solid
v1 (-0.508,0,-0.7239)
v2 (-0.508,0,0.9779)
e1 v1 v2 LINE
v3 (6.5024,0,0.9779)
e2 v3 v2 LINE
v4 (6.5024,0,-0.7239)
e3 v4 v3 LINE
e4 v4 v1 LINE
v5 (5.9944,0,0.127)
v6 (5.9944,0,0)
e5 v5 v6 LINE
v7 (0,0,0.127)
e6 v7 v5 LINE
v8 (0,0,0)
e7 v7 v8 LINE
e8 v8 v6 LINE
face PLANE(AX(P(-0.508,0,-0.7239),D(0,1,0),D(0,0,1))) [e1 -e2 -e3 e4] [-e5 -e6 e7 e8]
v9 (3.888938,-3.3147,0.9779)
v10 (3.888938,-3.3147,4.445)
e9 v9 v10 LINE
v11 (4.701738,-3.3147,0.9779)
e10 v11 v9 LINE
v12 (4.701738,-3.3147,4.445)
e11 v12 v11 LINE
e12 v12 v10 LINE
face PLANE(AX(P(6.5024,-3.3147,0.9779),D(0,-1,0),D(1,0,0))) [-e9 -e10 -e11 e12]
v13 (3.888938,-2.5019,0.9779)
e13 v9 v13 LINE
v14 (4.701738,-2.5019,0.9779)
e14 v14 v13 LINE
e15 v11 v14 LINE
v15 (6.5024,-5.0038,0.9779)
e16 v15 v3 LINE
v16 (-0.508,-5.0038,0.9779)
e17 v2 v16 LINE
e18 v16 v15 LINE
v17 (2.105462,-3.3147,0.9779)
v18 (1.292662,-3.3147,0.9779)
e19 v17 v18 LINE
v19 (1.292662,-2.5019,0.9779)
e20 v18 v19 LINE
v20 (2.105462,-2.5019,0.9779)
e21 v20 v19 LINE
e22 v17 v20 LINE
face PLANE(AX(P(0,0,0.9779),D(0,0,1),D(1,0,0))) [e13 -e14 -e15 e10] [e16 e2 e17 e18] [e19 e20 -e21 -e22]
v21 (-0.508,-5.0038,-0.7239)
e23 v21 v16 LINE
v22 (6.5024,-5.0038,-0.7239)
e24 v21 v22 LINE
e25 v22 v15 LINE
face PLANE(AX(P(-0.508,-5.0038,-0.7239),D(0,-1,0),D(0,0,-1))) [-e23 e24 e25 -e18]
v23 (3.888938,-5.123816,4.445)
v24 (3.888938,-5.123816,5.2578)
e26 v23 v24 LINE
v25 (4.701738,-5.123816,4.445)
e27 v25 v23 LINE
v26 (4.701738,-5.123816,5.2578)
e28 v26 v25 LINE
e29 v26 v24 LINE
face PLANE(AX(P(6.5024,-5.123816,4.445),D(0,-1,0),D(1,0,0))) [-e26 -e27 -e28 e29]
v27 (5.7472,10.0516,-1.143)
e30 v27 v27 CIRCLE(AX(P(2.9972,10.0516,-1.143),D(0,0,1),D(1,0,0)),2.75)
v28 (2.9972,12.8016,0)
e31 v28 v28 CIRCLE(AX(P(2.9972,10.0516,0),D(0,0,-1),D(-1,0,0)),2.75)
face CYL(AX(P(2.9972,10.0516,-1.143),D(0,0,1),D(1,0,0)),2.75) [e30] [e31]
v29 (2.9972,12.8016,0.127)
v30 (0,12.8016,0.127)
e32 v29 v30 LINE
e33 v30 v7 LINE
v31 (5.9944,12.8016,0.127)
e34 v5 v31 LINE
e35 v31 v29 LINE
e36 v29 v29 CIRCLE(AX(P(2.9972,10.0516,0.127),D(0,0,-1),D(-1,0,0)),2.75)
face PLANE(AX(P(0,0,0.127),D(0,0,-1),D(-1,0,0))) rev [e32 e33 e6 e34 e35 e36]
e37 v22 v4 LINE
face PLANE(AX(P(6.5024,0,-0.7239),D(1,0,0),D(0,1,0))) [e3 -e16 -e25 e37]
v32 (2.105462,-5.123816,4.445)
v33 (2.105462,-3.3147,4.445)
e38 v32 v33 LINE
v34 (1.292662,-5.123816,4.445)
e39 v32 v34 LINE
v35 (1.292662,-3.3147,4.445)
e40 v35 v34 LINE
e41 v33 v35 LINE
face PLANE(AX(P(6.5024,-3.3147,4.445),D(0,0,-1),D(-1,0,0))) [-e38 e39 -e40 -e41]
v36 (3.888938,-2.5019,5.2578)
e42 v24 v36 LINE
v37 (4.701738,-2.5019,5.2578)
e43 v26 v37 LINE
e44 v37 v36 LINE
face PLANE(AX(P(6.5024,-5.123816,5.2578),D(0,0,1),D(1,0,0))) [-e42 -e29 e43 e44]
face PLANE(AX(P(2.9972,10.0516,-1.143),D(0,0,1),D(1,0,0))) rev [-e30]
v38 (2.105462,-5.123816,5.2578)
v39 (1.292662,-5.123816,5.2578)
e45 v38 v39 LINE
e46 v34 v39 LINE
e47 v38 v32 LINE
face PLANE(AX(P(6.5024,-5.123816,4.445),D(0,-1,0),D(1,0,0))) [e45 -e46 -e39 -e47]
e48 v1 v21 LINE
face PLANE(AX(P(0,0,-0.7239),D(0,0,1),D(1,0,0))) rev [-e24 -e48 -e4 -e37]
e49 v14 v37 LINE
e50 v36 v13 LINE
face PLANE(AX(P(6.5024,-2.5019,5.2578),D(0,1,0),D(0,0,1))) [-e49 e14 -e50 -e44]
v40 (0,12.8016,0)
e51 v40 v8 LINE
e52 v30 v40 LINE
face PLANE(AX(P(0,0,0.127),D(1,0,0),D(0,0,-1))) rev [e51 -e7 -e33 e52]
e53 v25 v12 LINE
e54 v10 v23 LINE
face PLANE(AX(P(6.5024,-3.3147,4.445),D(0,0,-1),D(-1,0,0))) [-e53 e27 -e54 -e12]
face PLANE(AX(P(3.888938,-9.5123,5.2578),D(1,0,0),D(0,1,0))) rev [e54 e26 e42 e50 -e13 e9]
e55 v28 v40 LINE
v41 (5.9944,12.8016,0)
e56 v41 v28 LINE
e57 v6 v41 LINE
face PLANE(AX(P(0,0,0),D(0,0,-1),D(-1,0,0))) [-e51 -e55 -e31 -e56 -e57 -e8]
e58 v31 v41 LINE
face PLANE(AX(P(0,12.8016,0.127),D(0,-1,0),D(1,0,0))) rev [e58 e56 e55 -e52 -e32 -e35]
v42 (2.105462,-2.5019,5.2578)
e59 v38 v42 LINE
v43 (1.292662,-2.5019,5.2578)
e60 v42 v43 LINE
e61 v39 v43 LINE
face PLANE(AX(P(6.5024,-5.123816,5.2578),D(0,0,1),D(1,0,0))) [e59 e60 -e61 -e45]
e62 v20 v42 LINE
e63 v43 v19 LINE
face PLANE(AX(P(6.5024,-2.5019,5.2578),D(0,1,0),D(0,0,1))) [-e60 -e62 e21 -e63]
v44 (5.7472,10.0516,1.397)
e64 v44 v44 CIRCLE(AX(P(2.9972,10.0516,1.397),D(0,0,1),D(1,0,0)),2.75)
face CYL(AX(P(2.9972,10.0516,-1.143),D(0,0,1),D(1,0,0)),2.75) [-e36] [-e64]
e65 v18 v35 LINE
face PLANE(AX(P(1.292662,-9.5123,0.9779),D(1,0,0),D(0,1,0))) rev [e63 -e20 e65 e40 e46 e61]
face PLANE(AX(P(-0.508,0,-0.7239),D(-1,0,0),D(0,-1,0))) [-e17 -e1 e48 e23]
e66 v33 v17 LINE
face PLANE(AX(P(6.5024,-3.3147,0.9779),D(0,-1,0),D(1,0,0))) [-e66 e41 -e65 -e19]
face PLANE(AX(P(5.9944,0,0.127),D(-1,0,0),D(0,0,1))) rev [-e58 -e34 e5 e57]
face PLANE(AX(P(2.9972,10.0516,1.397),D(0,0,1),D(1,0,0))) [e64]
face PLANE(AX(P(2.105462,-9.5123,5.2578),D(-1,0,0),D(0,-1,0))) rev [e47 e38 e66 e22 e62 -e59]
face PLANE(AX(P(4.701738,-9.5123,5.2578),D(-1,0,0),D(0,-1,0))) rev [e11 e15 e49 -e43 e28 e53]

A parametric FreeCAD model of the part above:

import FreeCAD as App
import Part
import Sketcher
from FreeCAD import Vector
Q = App.Units.Quantity

doc = App.newDocument("Part")
body = doc.addObject("PartDesign::Body", "Body")

# Sketch on XY plane
sketch1 = doc.addObject("Sketcher::SketchObject", "Sketch")
body.addObject(sketch1)
sketch1.AttachmentSupport = (doc.XY_Plane, [""])
sketch1.MapMode = "FlatFace"
sketch1.addGeometry(Part.LineSegment(Vector(0, 13, 0), Vector(0, 0, 0)), False)
sketch1.addGeometry(Part.LineSegment(Vector(0, 0, 0), Vector(6, 0, 0)), False)
sketch1.addGeometry(Part.LineSegment(Vector(6, 0, 0), Vector(6, 13, 0)), False)
sketch1.addGeometry(Part.LineSegment(Vector(6, 13, 0), Vector(0, 13, 0)), False)
sketch1.addConstraint(Sketcher.Constraint("Coincident", 0, 2, 1, 1))
sketch1.addConstraint(Sketcher.Constraint("Coincident", 1, 2, 2, 1))
sketch1.addConstraint(Sketcher.Constraint("Coincident", 2, 2, 3, 1))
sketch1.addConstraint(Sketcher.Constraint("Coincident", 3, 2, 0, 1))
sketch1.addConstraint(Sketcher.Constraint("Vertical", 0))
sketch1.addConstraint(Sketcher.Constraint("Horizontal", 1))
sketch1.addConstraint(Sketcher.Constraint("Vertical", 2))
sketch1.addConstraint(Sketcher.Constraint("Horizontal", 3))
sketch1.addConstraint(Sketcher.Constraint("Coincident", 0, 2, -1, 1))
sketch1.addConstraint(Sketcher.Constraint("DistanceX", 1, 1, 1, 2, Q("0.236 in")))
sketch1.addConstraint(Sketcher.Constraint("DistanceY", 0, 2, 0, 1, Q("0.504 in")))
pad1 = doc.addObject("PartDesign::Pad", "Pad")
body.addObject(pad1)
pad1.Profile = sketch1
pad1.Length = Q("0.005 in")

# Sketch on XY plane
sketch2 = doc.addObject("Sketcher::SketchObject", "Sketch001")
body.addObject(sketch2)
sketch2.AttachmentSupport = (doc.XY_Plane, [""])
sketch2.MapMode = "FlatFace"
sketch2.AttachmentOffset = App.Placement(Vector(0, 0, 0.005 * 25.4), App.Rotation())
sketch2.addGeometry(Part.LineSegment(Vector(-1, 0, 0), Vector(-1, -5, 0)), False)
sketch2.addGeometry(Part.LineSegment(Vector(-1, -5, 0), Vector(7, -5, 0)), False)
sketch2.addGeometry(Part.LineSegment(Vector(7, -5, 0), Vector(7, 0, 0)), False)
sketch2.addGeometry(Part.LineSegment(Vector(7, 0, 0), Vector(-1, 0, 0)), False)
sketch2.addConstraint(Sketcher.Constraint("Coincident", 0, 2, 1, 1))
sketch2.addConstraint(Sketcher.Constraint("Coincident", 1, 2, 2, 1))
sketch2.addConstraint(Sketcher.Constraint("Coincident", 2, 2, 3, 1))
sketch2.addConstraint(Sketcher.Constraint("Coincident", 3, 2, 0, 1))
sketch2.addConstraint(Sketcher.Constraint("Vertical", 0))
sketch2.addConstraint(Sketcher.Constraint("Horizontal", 1))
sketch2.addConstraint(Sketcher.Constraint("Vertical", 2))
sketch2.addConstraint(Sketcher.Constraint("Horizontal", 3))
sketch2.addConstraint(Sketcher.Constraint("PointOnObject", 2, 2, -1))
sketch2.addConstraint(Sketcher.Constraint("DistanceX", 1, 1, 1, 2, Q("0.276 in")))
sketch2.addConstraint(Sketcher.Constraint("DistanceY", 0, 2, 0, 1, Q("0.197 in")))
sketch2.addConstraint(Sketcher.Constraint("DistanceX", 0, 2, -1, 1, Q("0.02 in")))
pad2 = doc.addObject("PartDesign::Pad", "Pad001")
body.addObject(pad2)
pad2.Profile = sketch2
pad2.Type = "TwoLengths"
pad2.Length = Q("0.0335 in")
pad2.Length2 = Q("0.0335 in")

# Sketch on XY plane
sketch3 = doc.addObject("Sketcher::SketchObject", "Sketch002")
body.addObject(sketch3)
sketch3.AttachmentSupport = (doc.XY_Plane, [""])
sketch3.MapMode = "FlatFace"
sketch3.AttachmentOffset = App.Placement(Vector(0, 0, 0.005 * 25.4), App.Rotation())
sketch3.addGeometry(Part.Circle(Vector(3, 10.1, 0), Vector(0, 0, 1), 2.8), False)
sketch3.addConstraint(Sketcher.Constraint("Diameter", 0, Q("5.5 mm")))
sketch3.addConstraint(Sketcher.Constraint("DistanceX", -1, 1, 0, 3, Q("0.118 in")))
sketch3.addConstraint(Sketcher.Constraint("DistanceY", -1, 1, 0, 3, Q("10.0516 mm")))
pad3 = doc.addObject("PartDesign::Pad", "Pad002")
body.addObject(pad3)
pad3.Profile = sketch3
pad3.Type = "TwoLengths"
pad3.Length = Q("0.05 in")
pad3.Length2 = Q("0.05 in")

# Sketch on YZ plane
sketch4 = doc.addObject("Sketcher::SketchObject", "Sketch003")
body.addObject(sketch4)
sketch4.AttachmentSupport = (doc.YZ_Plane, [""])
sketch4.MapMode = "FlatFace"
sketch4.AttachmentOffset = App.Placement(Vector(0, 0, -0.02 * 25.4), App.Rotation())
sketch4.addGeometry(Part.LineSegment(Vector(-3.3, 1, 0), Vector(-3.3, 4.4, 0)), False)
sketch4.addGeometry(Part.LineSegment(Vector(-3.3, 4.4, 0), Vector(-5.1, 4.4, 0)), False)
sketch4.addGeometry(Part.LineSegment(Vector(-5.1, 4.4, 0), Vector(-5.1, 5.3, 0)), False)
sketch4.addGeometry(Part.LineSegment(Vector(-5.1, 5.3, 0), Vector(-2.5, 5.3, 0)), False)
sketch4.addGeometry(Part.LineSegment(Vector(-2.5, 5.3, 0), Vector(-2.5, 1, 0)), False)
sketch4.addGeometry(Part.LineSegment(Vector(-2.5, 1, 0), Vector(-3.3, 1, 0)), False)
sketch4.addConstraint(Sketcher.Constraint("Coincident", 0, 2, 1, 1))
sketch4.addConstraint(Sketcher.Constraint("Coincident", 1, 2, 2, 1))
sketch4.addConstraint(Sketcher.Constraint("Coincident", 2, 2, 3, 1))
sketch4.addConstraint(Sketcher.Constraint("Coincident", 3, 2, 4, 1))
sketch4.addConstraint(Sketcher.Constraint("Coincident", 4, 2, 5, 1))
sketch4.addConstraint(Sketcher.Constraint("Coincident", 5, 2, 0, 1))
sketch4.addConstraint(Sketcher.Constraint("Vertical", 0))
sketch4.addConstraint(Sketcher.Constraint("Horizontal", 1))
sketch4.addConstraint(Sketcher.Constraint("Vertical", 2))
sketch4.addConstraint(Sketcher.Constraint("Horizontal", 3))
sketch4.addConstraint(Sketcher.Constraint("Vertical", 4))
sketch4.addConstraint(Sketcher.Constraint("Horizontal", 5))
sketch4.addConstraint(Sketcher.Constraint("Equal", 5, 2))
sketch4.addConstraint(Sketcher.Constraint("DistanceX", 5, 2, 5, 1, Q("0.032 in")))
sketch4.addConstraint(Sketcher.Constraint("DistanceY", 0, 1, 0, 2, Q("0.1365 in")))
sketch4.addConstraint(Sketcher.Constraint("DistanceY", -1, 1, 0, 2, Q("0.175 in")))
sketch4.addConstraint(Sketcher.Constraint("DistanceX", 0, 2, -1, 1, Q("0.1305 in")))
sketch4.addConstraint(Sketcher.Constraint("DistanceX", 1, 2, 1, 1, Q("1.809116 mm")))
pad4 = doc.addObject("PartDesign::Pad", "Pad003")
body.addObject(pad4)
pad4.Profile = sketch4
pad4.Length = Q("0.276 in")

# Sketch on XZ plane
sketch5 = doc.addObject("Sketcher::SketchObject", "Sketch004")
body.addObject(sketch5)
sketch5.AttachmentSupport = (doc.XZ_Plane, [""])
sketch5.MapMode = "FlatFace"
sketch5.AttachmentOffset = App.Placement(Vector(0, 0, 0.0985 * 25.4), App.Rotation())
sketch5.addGeometry(Part.LineSegment(Vector(-0.5, 1, 0), Vector(-0.5, 5.3, 0)), False)
sketch5.addGeometry(Part.LineSegment(Vector(-0.5, 5.3, 0), Vector(1.3, 5.3, 0)), False)
sketch5.addGeometry(Part.LineSegment(Vector(1.3, 5.3, 0), Vector(1.3, 1, 0)), False)
sketch5.addGeometry(Part.LineSegment(Vector(1.3, 1, 0), Vector(-0.5, 1, 0)), False)
sketch5.addGeometry(Part.LineSegment(Vector(2.1, 1, 0), Vector(2.1, 5.3, 0)), False)
sketch5.addGeometry(Part.LineSegment(Vector(2.1, 5.3, 0), Vector(3.9, 5.3, 0)), False)
sketch5.addGeometry(Part.LineSegment(Vector(3.9, 5.3, 0), Vector(3.9, 1, 0)), False)
sketch5.addGeometry(Part.LineSegment(Vector(3.9, 1, 0), Vector(2.1, 1, 0)), False)
sketch5.addGeometry(Part.LineSegment(Vector(4.7, 1, 0), Vector(4.7, 5.3, 0)), False)
sketch5.addGeometry(Part.LineSegment(Vector(4.7, 5.3, 0), Vector(6.5, 5.3, 0)), False)
sketch5.addGeometry(Part.LineSegment(Vector(6.5, 5.3, 0), Vector(6.5, 1, 0)), False)
sketch5.addGeometry(Part.LineSegment(Vector(6.5, 1, 0), Vector(4.7, 1, 0)), False)
sketch5.addConstraint(Sketcher.Constraint("Coincident", 0, 2, 1, 1))
sketch5.addConstraint(Sketcher.Constraint("Coincident", 1, 2, 2, 1))
sketch5.addConstraint(Sketcher.Constraint("Coincident", 2, 2, 3, 1))
sketch5.addConstraint(Sketcher.Constraint("Coincident", 3, 2, 0, 1))
sketch5.addConstraint(Sketcher.Constraint("Coincident", 4, 2, 5, 1))
sketch5.addConstraint(Sketcher.Constraint("Coincident", 5, 2, 6, 1))
sketch5.addConstraint(Sketcher.Constraint("Coincident", 6, 2, 7, 1))
sketch5.addConstraint(Sketcher.Constraint("Coincident", 7, 2, 4, 1))
sketch5.addConstraint(Sketcher.Constraint("Coincident", 8, 2, 9, 1))
sketch5.addConstraint(Sketcher.Constraint("Coincident", 9, 2, 10, 1))
sketch5.addConstraint(Sketcher.Constraint("Coincident", 10, 2, 11, 1))
sketch5.addConstraint(Sketcher.Constraint("Coincident", 11, 2, 8, 1))
sketch5.addConstraint(Sketcher.Constraint("Vertical", 0))
sketch5.addConstraint(Sketcher.Constraint("Horizontal", 1))
sketch5.addConstraint(Sketcher.Constraint("Vertical", 2))
sketch5.addConstraint(Sketcher.Constraint("Horizontal", 3))
sketch5.addConstraint(Sketcher.Constraint("Vertical", 4))
sketch5.addConstraint(Sketcher.Constraint("Horizontal", 5))
sketch5.addConstraint(Sketcher.Constraint("Vertical", 6))
sketch5.addConstraint(Sketcher.Constraint("Horizontal", 7))
sketch5.addConstraint(Sketcher.Constraint("Vertical", 8))
sketch5.addConstraint(Sketcher.Constraint("Horizontal", 9))
sketch5.addConstraint(Sketcher.Constraint("Vertical", 10))
sketch5.addConstraint(Sketcher.Constraint("Horizontal", 11))
sketch5.addConstraint(Sketcher.Constraint("Horizontal", 1, 2, 4, 2))
sketch5.addConstraint(Sketcher.Constraint("Horizontal", 3, 2, 6, 2))
sketch5.addConstraint(Sketcher.Constraint("Horizontal", 5, 2, 8, 2))
sketch5.addConstraint(Sketcher.Constraint("Horizontal", 7, 2, 10, 2))
sketch5.addConstraint(Sketcher.Constraint("Equal", 3, 9))
sketch5.addConstraint(Sketcher.Constraint("DistanceX", 0, 2, -1, 1, Q("0.02 in")))
sketch5.addConstraint(Sketcher.Constraint("DistanceY", 0, 1, 0, 2, Q("0.1685 in")))
sketch5.addConstraint(Sketcher.Constraint("DistanceY", -1, 1, 0, 2, Q("0.207 in")))
sketch5.addConstraint(Sketcher.Constraint("DistanceX", -1, 1, 9, 2, Q("0.256 in")))
sketch5.addConstraint(Sketcher.Constraint("DistanceX", 1, 2, 4, 2, Q("0.032 in")))
sketch5.addConstraint(Sketcher.Constraint("DistanceX", 5, 2, 8, 2, Q("0.032 in")))
sketch5.addConstraint(Sketcher.Constraint("DistanceX", 1, 1, 1, 2, Q("1.800662 mm")))
pocket1 = doc.addObject("PartDesign::Pocket", "Pocket")
body.addObject(pocket1)
pocket1.Profile = sketch5
pocket1.Length = Q("0.276 in")
pocket1.Reversed = True

doc.recompute()
